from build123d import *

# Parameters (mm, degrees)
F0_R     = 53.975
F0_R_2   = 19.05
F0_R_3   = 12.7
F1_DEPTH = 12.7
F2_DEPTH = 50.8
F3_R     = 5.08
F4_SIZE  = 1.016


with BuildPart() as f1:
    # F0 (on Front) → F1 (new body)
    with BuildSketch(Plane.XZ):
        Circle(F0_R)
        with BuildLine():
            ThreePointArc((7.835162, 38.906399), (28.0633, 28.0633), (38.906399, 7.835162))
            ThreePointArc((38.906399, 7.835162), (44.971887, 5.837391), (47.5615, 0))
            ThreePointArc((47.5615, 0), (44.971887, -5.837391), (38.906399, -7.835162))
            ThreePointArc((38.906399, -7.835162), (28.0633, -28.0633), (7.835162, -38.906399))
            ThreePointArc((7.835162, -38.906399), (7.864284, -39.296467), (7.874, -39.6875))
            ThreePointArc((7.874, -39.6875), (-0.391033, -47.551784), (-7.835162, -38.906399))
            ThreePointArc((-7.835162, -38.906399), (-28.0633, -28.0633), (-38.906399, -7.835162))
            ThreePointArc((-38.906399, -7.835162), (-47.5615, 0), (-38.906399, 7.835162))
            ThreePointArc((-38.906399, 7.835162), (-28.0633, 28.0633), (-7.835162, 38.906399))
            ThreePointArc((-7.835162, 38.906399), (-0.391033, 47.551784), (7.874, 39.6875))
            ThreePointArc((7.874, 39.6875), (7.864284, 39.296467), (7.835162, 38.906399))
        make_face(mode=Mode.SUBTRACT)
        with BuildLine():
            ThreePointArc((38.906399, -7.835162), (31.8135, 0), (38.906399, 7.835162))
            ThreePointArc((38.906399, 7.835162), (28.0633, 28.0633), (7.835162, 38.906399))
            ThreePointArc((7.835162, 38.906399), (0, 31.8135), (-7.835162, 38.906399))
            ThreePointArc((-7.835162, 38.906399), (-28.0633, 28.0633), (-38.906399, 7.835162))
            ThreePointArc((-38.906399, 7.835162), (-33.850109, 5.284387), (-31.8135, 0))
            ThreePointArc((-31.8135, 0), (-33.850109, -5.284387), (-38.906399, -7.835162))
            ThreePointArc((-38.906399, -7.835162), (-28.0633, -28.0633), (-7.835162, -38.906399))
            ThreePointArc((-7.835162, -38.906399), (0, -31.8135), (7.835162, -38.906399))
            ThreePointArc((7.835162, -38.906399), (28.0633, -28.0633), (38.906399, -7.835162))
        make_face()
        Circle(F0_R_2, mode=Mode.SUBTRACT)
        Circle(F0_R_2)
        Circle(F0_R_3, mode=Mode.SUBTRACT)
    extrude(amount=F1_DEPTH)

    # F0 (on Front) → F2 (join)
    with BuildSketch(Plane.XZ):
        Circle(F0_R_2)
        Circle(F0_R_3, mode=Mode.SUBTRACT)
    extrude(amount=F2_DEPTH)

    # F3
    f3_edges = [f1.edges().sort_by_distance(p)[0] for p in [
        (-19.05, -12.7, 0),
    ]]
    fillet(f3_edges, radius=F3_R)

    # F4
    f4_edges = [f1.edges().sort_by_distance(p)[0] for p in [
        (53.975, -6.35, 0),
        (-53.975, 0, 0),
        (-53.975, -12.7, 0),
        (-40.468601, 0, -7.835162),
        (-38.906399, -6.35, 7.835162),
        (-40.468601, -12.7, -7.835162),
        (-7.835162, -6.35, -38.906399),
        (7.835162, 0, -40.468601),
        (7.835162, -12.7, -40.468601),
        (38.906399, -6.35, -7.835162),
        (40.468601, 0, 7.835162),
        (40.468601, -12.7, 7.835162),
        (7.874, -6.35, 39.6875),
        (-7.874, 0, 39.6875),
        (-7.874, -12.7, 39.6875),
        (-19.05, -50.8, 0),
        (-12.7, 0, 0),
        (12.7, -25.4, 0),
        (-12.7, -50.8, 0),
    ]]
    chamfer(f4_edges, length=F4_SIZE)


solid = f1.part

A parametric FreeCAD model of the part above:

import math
import FreeCAD as App
import Part
import Sketcher
Q = App.Units.Quantity


def edges_at(feature, points):
    """Names of the edges that pass closest to the given points."""
    edges = feature.Shape.Edges
    near = lambda p: min(range(len(edges)), key=lambda i: edges[i].distToShape(Part.Vertex(*p))[0])
    return sorted({f"Edge{near(p) + 1}" for p in points})

doc = App.newDocument("Part")
body = doc.addObject("PartDesign::Body", "Body")

# Sketch on XZ plane
sketch1 = body.newObject("Sketcher::SketchObject", "Sketch")
sketch1.AttachmentSupport = (doc.getObject("XZ_Plane"), [""])
sketch1.MapMode = "FlatFace"
sketch1.addGeometry(Part.Circle(App.Vector(0, 0, 0), App.Vector(0, 0, 1), 54), False)
sketch1.addGeometry(Part.ArcOfCircle(Part.Circle(App.Vector(0, -39.7, 0), App.Vector(0, 0, 1), 7.9), math.radians(174), math.radians(360)), False)
sketch1.addGeometry(Part.ArcOfCircle(Part.Circle(App.Vector(0, -39.7, 0), App.Vector(0, 0, 1), 7.9), math.radians(6), math.radians(174)), False)
sketch1.addGeometry(Part.ArcOfCircle(Part.Circle(App.Vector(0, -39.7, 0), App.Vector(0, 0, 1), 7.9), math.radians(0), math.radians(5.69)), False)
sketch1.addGeometry(Part.ArcOfCircle(Part.Circle(App.Vector(39.7, 0, 0), App.Vector(0, 0, 1), 7.9), math.radians(-96), math.radians(0)), False)
sketch1.addGeometry(Part.ArcOfCircle(Part.Circle(App.Vector(39.7, 0, 0), App.Vector(0, 0, 1), 7.9), math.radians(96), math.radians(264)), False)
sketch1.addGeometry(Part.ArcOfCircle(Part.Circle(App.Vector(39.7, 0, 0), App.Vector(0, 0, 1), 7.9), math.radians(0), math.radians(96)), False)
sketch1.addGeometry(Part.ArcOfCircle(Part.Circle(App.Vector(-39.7, 0, 0), App.Vector(0, 0, 1), 7.9), math.radians(84), math.radians(276)), False)
sketch1.addGeometry(Part.ArcOfCircle(Part.Circle(App.Vector(-39.7, 0, 0), App.Vector(0, 0, 1), 7.9), math.radians(0), math.radians(84)), False)
sketch1.addGeometry(Part.ArcOfCircle(Part.Circle(App.Vector(-39.7, 0, 0), App.Vector(0, 0, 1), 7.9), math.radians(-84), math.radians(0)), False)
sketch1.addGeometry(Part.ArcOfCircle(Part.Circle(App.Vector(0, 39.7, 0), App.Vector(0, 0, 1), 7.9), math.radians(-5.69), math.radians(0)), False)
sketch1.addGeometry(Part.ArcOfCircle(Part.Circle(App.Vector(0, 39.7, 0), App.Vector(0, 0, 1), 7.9), math.radians(-174), math.radians(-6)), False)
sketch1.addGeometry(Part.ArcOfCircle(Part.Circle(App.Vector(0, 39.7, 0), App.Vector(0, 0, 1), 7.9), math.radians(0), math.radians(186)), False)
sketch1.addGeometry(Part.Circle(App.Vector(0, 0, 0), App.Vector(0, 0, 1), 12.7), False)
sketch1.addConstraint(Sketcher.Constraint("Tangent", 1, 1, 2, 2))
sketch1.addConstraint(Sketcher.Constraint("Coincident", 2, 1, 3, 2))
sketch1.addConstraint(Sketcher.Constraint("Coincident", 3, 1, 1, 2))
sketch1.addConstraint(Sketcher.Constraint("Tangent", 4, 1, 5, 2))
sketch1.addConstraint(Sketcher.Constraint("Tangent", 5, 1, 6, 2))
sketch1.addConstraint(Sketcher.Constraint("Tangent", 6, 1, 4, 2))
sketch1.addConstraint(Sketcher.Constraint("Tangent", 7, 1, 8, 2))
sketch1.addConstraint(Sketcher.Constraint("Tangent", 8, 1, 9, 2))
sketch1.addConstraint(Sketcher.Constraint("Tangent", 9, 1, 7, 2))
sketch1.addConstraint(Sketcher.Constraint("Coincident", 10, 1, 11, 2))
sketch1.addConstraint(Sketcher.Constraint("Tangent", 11, 1, 12, 2))
sketch1.addConstraint(Sketcher.Constraint("Coincident", 12, 1, 10, 2))
sketch1.addConstraint(Sketcher.Constraint("Coincident", 0, 3, -1, 1))
sketch1.addConstraint(Sketcher.Constraint("Coincident", 13, 3, -1, 1))
sketch1.addConstraint(Sketcher.Constraint("Equal", 1, 2))
sketch1.addConstraint(Sketcher.Constraint("Equal", 2, 4))
sketch1.addConstraint(Sketcher.Constraint("Equal", 6, 7))
sketch1.addConstraint(Sketcher.Constraint("Equal", 3, 10))
sketch1.addConstraint(Sketcher.Constraint("Equal", 9, 11))
sketch1.addConstraint(Sketcher.Constraint("Equal", 11, 12))
sketch1.addConstraint(Sketcher.Constraint("Symmetric", 4, 3, 7, 3, -1, 1))
sketch1.addConstraint(Sketcher.Constraint("Symmetric", 1, 3, 11, 3, -1, 1))
sketch1.addConstraint(Sketcher.Constraint("Symmetric", 1, 1, 2, 1, -2))
sketch1.addConstraint(Sketcher.Constraint("Symmetric", 5, 1, 7, 1, -2))
sketch1.addConstraint(Sketcher.Constraint("PointOnObject", 6, 1, -1))
sketch1.addConstraint(Sketcher.Constraint("PointOnObject", 8, 1, -1))
sketch1.addConstraint(Sketcher.Constraint("Horizontal", 2, 3, 3, 1))
sketch1.addConstraint(Sketcher.Constraint("Horizontal", 4, 1, 9, 1))
sketch1.addConstraint(Sketcher.Constraint("Horizontal", 10, 1, 11, 1))
sketch1.addConstraint(Sketcher.Constraint("Horizontal", 11, 3, 12, 1))
sketch1.addConstraint(Sketcher.Constraint("Vertical", 4, 1, 5, 1))
sketch1.addConstraint(Sketcher.Constraint("Vertical", 2, 1, 10, 1))
sketch1.addConstraint(Sketcher.Constraint("Diameter", 13, Q("1 in")))
sketch1.addConstraint(Sketcher.Constraint("Diameter", 0, Q("4.25 in")))
sketch1.addConstraint(Sketcher.Constraint("Radius", 1, Q("0.31 in")))
sketch1.addConstraint(Sketcher.Constraint("DistanceY", 1, 3, -1, 1, Q("1.5625 in")))
sketch1.addConstraint(Sketcher.Constraint("DistanceX", -1, 1, 4, 3, Q("1.5625 in")))
sketch1.addConstraint(Sketcher.Constraint("Radius", 3, Q("7.87449 mm")))
sketch1.addConstraint(Sketcher.Constraint("DistanceY", 1, 1, -1, 1, Q("38.906399 mm")))
sketch1.addConstraint(Sketcher.Constraint("DistanceX", -1, 1, 4, 1, Q("38.906399 mm")))
pad1 = body.newObject("PartDesign::Pad", "Pad")
pad1.Profile = sketch1
pad1.Length = Q("0.5 in")

# Sketch on XZ plane
sketch2 = body.newObject("Sketcher::SketchObject", "Sketch001")
sketch2.AttachmentSupport = (doc.getObject("XZ_Plane"), [""])
sketch2.MapMode = "FlatFace"
sketch2.addGeometry(Part.Circle(App.Vector(0, 0, 0), App.Vector(0, 0, 1), 19), False)
sketch2.addGeometry(Part.Circle(App.Vector(0, 0, 0), App.Vector(0, 0, 1), 13), False)
sketch2.addConstraint(Sketcher.Constraint("Coincident", 0, 3, -1, 1))
sketch2.addConstraint(Sketcher.Constraint("Coincident", 1, 3, -1, 1))
sketch2.addConstraint(Sketcher.Constraint("Diameter", 1, Q("1 in")))
sketch2.addConstraint(Sketcher.Constraint("Diameter", 0, Q("1.5 in")))
pad2 = body.newObject("PartDesign::Pad", "Pad001")
pad2.Profile = sketch2
pad2.Length = Q("2 in")
doc.recompute()

fillet = body.newObject("PartDesign::Fillet", "Fillet")
fillet.Base = (pad2, edges_at(pad2, [(-19.05, -12.7, 0)]))
fillet.Radius = Q("0.2 in")
doc.recompute()

chamfer = body.newObject("PartDesign::Chamfer", "Chamfer")
chamfer.Base = (fillet, edges_at(fillet, [
    (53.975, -6.35, 0),
    (-53.975, 0, 0),
    (-53.975, -12.7, 0),
    (-47.562, 0, 0),
    (-38.906, -6.35, 7.835),
    (-47.562, -12.7, 0),
    (-7.835, -6.35, -38.906),
    (-0.391, 0, -47.552),
    (-0.391, -12.7, -47.552),
    (38.906, -6.35, -7.835),
    (44.972, 0, 5.837),
    (44.972, -12.7, 5.837),
    (7.874, -6.35, 39.688),
    (-0.391, 0, 47.552),
    (-0.391, -12.7, 47.552),
    (-19.05, -50.8, 0),
    (-12.7, 0, 0),
    (12.7, -25.4, 0),
    (-12.7, -50.8, 0),
]))
chamfer.Size = Q("0.04 in")

doc.recompute()
